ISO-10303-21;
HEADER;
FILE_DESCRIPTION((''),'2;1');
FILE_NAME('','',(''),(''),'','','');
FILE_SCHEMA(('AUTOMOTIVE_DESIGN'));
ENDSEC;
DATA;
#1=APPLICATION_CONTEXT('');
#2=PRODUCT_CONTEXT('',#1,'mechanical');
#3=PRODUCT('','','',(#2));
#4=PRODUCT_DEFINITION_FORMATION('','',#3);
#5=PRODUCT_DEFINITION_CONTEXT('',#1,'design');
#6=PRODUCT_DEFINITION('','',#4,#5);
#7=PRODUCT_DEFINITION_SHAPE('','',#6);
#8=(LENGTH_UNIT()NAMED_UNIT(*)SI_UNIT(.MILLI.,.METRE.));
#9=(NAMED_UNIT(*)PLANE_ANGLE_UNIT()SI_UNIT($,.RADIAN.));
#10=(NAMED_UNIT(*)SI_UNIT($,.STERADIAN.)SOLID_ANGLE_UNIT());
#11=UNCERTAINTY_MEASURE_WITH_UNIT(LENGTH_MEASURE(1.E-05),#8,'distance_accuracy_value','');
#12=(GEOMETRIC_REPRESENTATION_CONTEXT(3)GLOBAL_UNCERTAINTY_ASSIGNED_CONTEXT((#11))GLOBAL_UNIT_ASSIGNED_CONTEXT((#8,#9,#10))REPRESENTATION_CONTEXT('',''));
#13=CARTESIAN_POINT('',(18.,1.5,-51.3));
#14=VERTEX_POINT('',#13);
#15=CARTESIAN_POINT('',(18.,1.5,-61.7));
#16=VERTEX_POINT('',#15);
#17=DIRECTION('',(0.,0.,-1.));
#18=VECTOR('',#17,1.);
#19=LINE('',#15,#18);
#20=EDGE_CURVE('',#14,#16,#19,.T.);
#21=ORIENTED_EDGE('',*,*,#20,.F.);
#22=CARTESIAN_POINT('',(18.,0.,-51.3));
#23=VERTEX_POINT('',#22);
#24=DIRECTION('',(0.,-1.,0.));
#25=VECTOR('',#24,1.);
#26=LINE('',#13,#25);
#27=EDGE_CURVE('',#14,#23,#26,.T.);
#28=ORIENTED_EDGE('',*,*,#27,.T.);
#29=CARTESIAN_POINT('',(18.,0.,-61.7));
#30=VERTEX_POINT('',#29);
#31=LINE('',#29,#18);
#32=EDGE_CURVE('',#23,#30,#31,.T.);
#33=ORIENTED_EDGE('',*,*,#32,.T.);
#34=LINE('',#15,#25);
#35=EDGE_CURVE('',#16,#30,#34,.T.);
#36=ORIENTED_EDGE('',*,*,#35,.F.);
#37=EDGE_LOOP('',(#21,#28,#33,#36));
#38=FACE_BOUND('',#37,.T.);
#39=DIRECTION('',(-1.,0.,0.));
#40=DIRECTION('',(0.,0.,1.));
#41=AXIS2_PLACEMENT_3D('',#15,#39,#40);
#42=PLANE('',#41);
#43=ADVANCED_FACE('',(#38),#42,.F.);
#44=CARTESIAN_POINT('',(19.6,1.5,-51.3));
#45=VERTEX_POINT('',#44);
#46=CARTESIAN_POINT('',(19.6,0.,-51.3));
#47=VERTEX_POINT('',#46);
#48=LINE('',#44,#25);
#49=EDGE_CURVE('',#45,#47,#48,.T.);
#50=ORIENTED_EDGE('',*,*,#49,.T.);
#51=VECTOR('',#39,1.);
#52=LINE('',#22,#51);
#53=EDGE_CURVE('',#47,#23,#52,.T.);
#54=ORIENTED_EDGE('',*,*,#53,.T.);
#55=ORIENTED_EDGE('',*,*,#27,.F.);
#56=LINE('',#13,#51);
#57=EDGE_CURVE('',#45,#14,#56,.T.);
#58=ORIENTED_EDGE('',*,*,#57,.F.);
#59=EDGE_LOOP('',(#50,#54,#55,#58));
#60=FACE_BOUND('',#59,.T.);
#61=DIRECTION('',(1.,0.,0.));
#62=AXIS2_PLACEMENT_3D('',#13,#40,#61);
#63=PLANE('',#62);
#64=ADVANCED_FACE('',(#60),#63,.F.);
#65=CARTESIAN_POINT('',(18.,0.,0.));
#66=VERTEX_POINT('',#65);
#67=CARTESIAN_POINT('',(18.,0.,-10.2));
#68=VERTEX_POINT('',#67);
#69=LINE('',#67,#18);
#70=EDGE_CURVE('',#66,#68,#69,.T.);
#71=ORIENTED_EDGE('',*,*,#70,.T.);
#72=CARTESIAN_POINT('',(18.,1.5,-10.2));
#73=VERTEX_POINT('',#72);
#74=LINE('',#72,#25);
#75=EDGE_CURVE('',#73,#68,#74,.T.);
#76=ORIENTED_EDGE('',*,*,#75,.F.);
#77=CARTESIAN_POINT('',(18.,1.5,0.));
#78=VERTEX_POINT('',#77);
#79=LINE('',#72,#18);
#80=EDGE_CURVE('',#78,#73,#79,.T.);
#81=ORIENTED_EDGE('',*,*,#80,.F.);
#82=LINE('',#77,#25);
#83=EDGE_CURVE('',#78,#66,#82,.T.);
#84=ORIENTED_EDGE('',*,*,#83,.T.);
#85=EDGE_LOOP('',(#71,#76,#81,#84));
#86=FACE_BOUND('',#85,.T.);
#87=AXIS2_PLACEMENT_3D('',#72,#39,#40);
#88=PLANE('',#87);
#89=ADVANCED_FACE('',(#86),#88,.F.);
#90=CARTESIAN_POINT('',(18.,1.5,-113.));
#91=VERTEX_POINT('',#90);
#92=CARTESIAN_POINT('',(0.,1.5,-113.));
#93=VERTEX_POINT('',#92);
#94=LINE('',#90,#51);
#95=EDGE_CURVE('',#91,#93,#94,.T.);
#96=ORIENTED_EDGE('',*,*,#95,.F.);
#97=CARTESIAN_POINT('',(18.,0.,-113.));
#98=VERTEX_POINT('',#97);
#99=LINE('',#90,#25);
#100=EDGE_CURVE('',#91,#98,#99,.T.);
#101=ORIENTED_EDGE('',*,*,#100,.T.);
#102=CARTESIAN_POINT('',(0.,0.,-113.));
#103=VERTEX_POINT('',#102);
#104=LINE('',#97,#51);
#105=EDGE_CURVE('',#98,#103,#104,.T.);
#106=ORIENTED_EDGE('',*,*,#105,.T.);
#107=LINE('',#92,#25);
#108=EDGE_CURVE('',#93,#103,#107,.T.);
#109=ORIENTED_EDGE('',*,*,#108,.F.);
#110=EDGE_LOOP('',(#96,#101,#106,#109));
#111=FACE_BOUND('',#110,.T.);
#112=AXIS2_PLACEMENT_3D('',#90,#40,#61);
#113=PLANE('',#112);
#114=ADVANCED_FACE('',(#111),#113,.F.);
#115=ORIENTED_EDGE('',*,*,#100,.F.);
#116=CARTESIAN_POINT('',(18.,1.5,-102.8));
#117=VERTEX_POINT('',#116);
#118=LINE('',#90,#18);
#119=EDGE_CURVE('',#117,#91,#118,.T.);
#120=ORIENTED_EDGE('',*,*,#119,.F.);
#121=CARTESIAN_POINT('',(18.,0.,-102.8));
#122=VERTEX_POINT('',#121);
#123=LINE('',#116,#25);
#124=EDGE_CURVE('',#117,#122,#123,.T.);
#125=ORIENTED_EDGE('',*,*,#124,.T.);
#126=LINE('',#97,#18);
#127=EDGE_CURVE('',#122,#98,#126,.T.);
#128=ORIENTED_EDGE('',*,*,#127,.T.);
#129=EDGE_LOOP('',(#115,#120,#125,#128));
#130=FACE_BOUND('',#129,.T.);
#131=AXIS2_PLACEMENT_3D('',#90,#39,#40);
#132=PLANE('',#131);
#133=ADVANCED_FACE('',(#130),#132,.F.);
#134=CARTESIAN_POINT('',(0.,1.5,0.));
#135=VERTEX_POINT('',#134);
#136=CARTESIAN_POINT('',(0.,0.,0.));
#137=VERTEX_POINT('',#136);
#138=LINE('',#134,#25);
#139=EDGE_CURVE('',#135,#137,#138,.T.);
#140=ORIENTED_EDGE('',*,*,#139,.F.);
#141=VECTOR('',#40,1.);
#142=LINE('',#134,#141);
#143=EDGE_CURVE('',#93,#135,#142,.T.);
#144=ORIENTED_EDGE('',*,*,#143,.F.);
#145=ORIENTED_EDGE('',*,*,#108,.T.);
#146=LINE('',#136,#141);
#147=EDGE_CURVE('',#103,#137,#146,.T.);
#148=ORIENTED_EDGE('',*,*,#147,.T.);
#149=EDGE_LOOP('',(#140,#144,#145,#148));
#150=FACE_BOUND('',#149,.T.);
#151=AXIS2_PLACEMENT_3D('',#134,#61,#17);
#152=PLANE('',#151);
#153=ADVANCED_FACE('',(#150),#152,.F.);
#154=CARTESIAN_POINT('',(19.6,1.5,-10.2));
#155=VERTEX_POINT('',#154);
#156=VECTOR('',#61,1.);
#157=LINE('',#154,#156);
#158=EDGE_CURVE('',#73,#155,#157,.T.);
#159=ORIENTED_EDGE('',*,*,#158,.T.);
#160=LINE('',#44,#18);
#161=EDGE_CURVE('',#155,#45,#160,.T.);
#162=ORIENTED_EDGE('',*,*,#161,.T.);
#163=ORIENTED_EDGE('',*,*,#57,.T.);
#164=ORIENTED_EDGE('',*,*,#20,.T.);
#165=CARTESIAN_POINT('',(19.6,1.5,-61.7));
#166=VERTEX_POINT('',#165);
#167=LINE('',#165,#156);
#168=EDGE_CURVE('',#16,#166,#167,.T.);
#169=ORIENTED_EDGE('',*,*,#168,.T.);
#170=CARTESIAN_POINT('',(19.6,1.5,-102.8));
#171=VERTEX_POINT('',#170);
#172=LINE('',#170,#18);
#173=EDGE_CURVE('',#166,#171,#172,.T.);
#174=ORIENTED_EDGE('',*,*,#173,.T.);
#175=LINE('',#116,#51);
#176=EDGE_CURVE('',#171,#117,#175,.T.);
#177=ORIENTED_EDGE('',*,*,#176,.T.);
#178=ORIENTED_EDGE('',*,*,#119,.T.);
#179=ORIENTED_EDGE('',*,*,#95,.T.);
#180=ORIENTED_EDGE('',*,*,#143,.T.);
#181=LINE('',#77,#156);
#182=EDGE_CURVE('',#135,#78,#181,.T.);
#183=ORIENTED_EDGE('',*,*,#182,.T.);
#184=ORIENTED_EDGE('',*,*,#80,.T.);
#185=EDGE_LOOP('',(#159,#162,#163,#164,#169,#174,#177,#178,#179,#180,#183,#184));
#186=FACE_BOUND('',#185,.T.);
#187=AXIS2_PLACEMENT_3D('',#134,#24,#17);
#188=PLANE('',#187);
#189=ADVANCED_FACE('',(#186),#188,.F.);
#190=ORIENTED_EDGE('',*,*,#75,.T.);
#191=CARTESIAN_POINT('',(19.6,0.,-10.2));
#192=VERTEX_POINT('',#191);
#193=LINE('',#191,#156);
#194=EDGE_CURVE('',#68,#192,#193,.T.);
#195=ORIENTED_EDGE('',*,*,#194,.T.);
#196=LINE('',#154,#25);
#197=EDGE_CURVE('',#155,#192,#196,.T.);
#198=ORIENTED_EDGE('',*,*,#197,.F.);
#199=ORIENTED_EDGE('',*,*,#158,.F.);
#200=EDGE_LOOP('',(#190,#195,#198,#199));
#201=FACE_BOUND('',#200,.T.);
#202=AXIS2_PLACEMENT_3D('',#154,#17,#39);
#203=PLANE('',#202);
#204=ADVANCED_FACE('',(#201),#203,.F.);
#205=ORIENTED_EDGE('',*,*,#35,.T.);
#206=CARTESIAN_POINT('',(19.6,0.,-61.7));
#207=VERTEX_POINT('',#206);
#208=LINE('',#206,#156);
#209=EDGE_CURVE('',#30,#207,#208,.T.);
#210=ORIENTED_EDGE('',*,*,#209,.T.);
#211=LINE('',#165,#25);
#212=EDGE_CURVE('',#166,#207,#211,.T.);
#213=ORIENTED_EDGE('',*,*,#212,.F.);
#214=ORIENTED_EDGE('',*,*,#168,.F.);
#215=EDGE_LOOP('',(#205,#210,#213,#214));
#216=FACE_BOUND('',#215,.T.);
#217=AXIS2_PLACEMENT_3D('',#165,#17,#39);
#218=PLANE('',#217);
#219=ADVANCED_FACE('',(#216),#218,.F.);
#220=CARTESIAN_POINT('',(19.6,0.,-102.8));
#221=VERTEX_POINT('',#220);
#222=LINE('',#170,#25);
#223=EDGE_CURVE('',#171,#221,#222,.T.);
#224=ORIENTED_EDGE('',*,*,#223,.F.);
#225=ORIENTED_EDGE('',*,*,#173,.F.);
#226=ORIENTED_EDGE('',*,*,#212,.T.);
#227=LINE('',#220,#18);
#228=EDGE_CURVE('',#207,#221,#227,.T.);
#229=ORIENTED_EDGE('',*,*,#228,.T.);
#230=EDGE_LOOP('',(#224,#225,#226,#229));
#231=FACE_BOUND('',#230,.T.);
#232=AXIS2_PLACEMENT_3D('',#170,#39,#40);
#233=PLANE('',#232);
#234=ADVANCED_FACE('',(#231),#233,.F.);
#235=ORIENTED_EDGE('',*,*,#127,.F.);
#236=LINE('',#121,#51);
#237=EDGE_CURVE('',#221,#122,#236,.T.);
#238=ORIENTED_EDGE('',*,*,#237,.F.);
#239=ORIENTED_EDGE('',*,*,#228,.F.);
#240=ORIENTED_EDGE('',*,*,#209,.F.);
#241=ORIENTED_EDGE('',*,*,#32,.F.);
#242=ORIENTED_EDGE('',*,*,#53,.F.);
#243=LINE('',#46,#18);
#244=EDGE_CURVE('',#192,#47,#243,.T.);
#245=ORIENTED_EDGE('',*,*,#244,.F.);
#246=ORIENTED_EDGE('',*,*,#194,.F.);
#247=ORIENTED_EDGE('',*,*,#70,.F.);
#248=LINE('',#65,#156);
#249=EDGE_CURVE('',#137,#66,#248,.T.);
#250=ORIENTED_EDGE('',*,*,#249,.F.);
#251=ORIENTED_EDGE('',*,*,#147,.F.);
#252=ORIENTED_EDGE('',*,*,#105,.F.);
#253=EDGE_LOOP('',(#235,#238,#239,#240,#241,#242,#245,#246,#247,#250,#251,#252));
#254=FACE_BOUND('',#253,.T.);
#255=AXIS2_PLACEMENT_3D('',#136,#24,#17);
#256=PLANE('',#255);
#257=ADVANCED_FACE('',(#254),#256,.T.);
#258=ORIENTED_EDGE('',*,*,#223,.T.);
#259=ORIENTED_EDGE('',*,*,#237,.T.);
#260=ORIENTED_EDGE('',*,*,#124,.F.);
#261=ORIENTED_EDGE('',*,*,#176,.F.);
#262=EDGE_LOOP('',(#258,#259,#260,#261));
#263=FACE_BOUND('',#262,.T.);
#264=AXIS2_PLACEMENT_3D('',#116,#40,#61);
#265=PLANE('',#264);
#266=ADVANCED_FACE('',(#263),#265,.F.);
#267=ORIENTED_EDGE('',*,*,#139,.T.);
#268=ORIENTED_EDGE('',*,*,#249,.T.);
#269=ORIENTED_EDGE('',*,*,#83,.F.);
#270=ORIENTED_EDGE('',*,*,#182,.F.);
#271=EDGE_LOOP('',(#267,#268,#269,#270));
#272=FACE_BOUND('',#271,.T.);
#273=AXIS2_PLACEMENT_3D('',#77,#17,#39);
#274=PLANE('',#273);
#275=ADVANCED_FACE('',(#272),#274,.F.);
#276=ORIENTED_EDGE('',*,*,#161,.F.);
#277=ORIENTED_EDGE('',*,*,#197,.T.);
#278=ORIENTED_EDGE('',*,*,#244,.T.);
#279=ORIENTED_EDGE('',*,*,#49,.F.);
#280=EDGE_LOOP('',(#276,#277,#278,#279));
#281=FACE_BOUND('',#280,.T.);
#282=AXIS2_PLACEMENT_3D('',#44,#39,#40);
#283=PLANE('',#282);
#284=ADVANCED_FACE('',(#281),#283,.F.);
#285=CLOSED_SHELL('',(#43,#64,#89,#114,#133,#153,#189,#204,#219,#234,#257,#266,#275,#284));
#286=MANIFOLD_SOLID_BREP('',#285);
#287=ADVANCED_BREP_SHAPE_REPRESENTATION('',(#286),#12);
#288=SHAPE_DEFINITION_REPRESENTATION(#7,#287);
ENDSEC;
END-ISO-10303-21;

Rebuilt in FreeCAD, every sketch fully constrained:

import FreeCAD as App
import Part
import Sketcher
from FreeCAD import Vector
Q = App.Units.Quantity


def add_polygon(sketch, points):
    """Adds a closed chain of lines whose ends are joined by coincident constraints."""
    first, n = sketch.GeometryCount, len(points)
    for a, b in zip(points, points[1:] + points[:1]):
        sketch.addGeometry(Part.LineSegment(App.Vector(*a, 0), App.Vector(*b, 0)), False)
    for i in range(n):
        sketch.addConstraint(Sketcher.Constraint("Coincident", first + i, 2, first + (i + 1) % n, 1))

doc = App.newDocument("Part")
params = doc.addObject("Spreadsheet::Sheet", "Params")
for row, (alias, value) in enumerate([
    ("sketch1_width", "18 mm"),
    ("sketch1_height", "113 mm"),
    ("sketch1_width2", "1.6 mm"),
    ("sketch1_height2", "10.2 mm"),
    ("sketch1_height3", "41.1 mm"),
    ("pad1_length", "1.5 mm"),
], start=1):
    params.set(f"A{row}", alias)
    params.set(f"B{row}", "=" + value)
    params.setAlias(f"B{row}", alias)

body = doc.addObject("PartDesign::Body", "Body")

# Sketch on XZ plane
sketch1 = body.newObject("Sketcher::SketchObject", "Sketch")
sketch1.AttachmentSupport = (doc.getObject("XZ_Plane"), [""])
sketch1.MapMode = "FlatFace"
add_polygon(sketch1, [(18, -102.8), (18, -113), (0, -113), (0, 0), (18, 0), (18, -10.2), (19.6, -10.2), (19.6, -51.3), (18, -51.3), (18, -61.7), (19.6, -61.7), (19.6, -102.8)])  # lines 0-11
sketch1.addConstraint(Sketcher.Constraint("Vertical", 0))
sketch1.addConstraint(Sketcher.Constraint("Horizontal", 1))
sketch1.addConstraint(Sketcher.Constraint("Vertical", 2))
sketch1.addConstraint(Sketcher.Constraint("Horizontal", 3))
sketch1.addConstraint(Sketcher.Constraint("Vertical", 4))
sketch1.addConstraint(Sketcher.Constraint("Horizontal", 5))
sketch1.addConstraint(Sketcher.Constraint("Vertical", 6))
sketch1.addConstraint(Sketcher.Constraint("Horizontal", 7))
sketch1.addConstraint(Sketcher.Constraint("Vertical", 8))
sketch1.addConstraint(Sketcher.Constraint("Horizontal", 9))
sketch1.addConstraint(Sketcher.Constraint("Vertical", 10))
sketch1.addConstraint(Sketcher.Constraint("Horizontal", 11))
sketch1.addConstraint(Sketcher.Constraint("Coincident", 2, 2, -1, 1))
sketch1.addConstraint(Sketcher.Constraint("Vertical", 0, 2, 3, 2))
sketch1.addConstraint(Sketcher.Constraint("Vertical", 4, 2, 7, 2))
sketch1.addConstraint(Sketcher.Constraint("Vertical", 6, 2, 9, 2))
sketch1.addConstraint(Sketcher.Constraint("Equal", 0, 4))
sketch1.addConstraint(Sketcher.Constraint("Equal", 6, 10))
sketch1.addConstraint(Sketcher.Constraint("DistanceX", 1, 2, 1, 1, Q("18 mm")))
sketch1.addConstraint(Sketcher.Constraint("DistanceY", 2, 1, 2, 2, Q("113 mm")))
sketch1.addConstraint(Sketcher.Constraint("DistanceX", 5, 1, 5, 2, Q("1.6 mm")))
sketch1.addConstraint(Sketcher.Constraint("DistanceY", 0, 2, 0, 1, Q("10.2 mm")))
sketch1.addConstraint(Sketcher.Constraint("DistanceY", 6, 2, 6, 1, Q("41.1 mm")))
sketch1.setExpression("Constraints[30]", "Params.sketch1_width")
sketch1.setExpression("Constraints[31]", "Params.sketch1_height")
sketch1.setExpression("Constraints[32]", "Params.sketch1_width2")
sketch1.setExpression("Constraints[33]", "Params.sketch1_height2")
sketch1.setExpression("Constraints[34]", "Params.sketch1_height3")
pad1 = body.newObject("PartDesign::Pad", "Pad")
pad1.Profile = sketch1
pad1.setExpression("Length", "Params.pad1_length")
pad1.Reversed = True

doc.recompute()
